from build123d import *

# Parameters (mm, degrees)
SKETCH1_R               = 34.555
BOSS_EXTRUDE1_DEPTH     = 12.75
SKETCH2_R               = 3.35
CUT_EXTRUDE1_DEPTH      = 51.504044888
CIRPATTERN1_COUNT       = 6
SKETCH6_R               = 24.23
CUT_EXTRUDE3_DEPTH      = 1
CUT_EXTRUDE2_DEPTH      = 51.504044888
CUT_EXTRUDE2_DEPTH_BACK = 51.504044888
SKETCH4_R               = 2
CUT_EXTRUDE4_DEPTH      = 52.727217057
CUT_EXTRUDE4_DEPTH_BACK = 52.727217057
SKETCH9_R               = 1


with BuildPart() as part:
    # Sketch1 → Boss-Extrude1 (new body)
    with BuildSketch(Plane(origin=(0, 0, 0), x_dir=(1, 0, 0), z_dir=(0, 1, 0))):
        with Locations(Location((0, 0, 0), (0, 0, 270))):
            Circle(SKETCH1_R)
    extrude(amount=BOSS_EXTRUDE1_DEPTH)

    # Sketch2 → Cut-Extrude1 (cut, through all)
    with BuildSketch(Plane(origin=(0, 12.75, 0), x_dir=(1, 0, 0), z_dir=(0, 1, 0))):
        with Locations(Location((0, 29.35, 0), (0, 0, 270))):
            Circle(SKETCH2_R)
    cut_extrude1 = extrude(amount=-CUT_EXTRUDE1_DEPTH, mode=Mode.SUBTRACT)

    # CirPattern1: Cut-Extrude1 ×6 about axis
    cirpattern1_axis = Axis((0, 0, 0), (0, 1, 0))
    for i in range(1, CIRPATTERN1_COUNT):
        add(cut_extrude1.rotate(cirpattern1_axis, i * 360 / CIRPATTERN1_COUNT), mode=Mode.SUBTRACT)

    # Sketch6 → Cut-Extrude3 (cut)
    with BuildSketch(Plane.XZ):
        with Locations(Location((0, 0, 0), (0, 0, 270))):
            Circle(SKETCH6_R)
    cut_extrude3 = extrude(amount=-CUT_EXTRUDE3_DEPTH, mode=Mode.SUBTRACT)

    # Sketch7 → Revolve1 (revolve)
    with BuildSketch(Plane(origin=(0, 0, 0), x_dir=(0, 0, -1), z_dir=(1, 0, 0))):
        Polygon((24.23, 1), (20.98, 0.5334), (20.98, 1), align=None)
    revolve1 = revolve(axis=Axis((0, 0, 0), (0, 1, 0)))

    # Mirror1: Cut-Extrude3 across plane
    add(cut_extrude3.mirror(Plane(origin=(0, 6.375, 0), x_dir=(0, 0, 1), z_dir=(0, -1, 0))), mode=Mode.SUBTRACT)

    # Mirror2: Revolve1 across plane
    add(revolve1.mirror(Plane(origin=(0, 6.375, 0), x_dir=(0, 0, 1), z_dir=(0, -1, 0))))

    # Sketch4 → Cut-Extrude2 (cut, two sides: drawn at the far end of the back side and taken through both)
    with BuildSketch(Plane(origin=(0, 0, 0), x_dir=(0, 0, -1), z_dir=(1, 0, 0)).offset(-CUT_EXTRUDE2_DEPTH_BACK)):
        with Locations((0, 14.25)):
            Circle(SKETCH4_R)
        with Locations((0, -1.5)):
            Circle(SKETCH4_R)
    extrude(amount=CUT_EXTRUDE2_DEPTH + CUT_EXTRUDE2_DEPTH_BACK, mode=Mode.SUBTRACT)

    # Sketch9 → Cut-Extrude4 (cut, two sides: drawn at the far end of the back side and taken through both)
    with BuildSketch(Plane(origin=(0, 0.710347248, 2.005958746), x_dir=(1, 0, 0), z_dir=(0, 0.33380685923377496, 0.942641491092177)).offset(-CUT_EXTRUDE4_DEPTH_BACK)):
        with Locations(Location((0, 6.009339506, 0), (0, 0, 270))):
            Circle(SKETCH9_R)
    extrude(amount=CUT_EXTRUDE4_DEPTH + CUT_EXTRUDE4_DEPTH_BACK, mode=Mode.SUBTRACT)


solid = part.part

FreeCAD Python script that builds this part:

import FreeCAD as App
import Part
import Sketcher

doc = App.newDocument("Part")
body = doc.addObject("PartDesign::Body", "Body")

# Sketch on XZ plane
sketch1 = body.newObject("Sketcher::SketchObject", "Sketch")
sketch1.AttachmentSupport = (doc.getObject("XZ_Plane"), [""])
sketch1.MapMode = "FlatFace"
sketch1.addGeometry(Part.Circle(App.Vector(0, 0, 0), App.Vector(0, 0, 1), 34.555), False)
sketch1.addConstraint([
    Sketcher.Constraint("Coincident", 0, 3, -1, 1),
    Sketcher.Constraint("Diameter", 0, 69.11),
])
pad1 = body.newObject("PartDesign::Pad", "Pad")
pad1.Profile = sketch1
pad1.Length = 12.75
pad1.Reversed = True

# Sketch on XZ plane
sketch2 = body.newObject("Sketcher::SketchObject", "Sketch001")
sketch2.AttachmentSupport = (doc.getObject("XZ_Plane"), [""])
sketch2.MapMode = "FlatFace"
sketch2.AttachmentOffset = App.Placement(App.Vector(0, 0, -12.75), App.Rotation())
sketch2.addGeometry(Part.Circle(App.Vector(0, -29.35, 0), App.Vector(0, 0, 1), 3.35), False)
sketch2.addConstraint([
    Sketcher.Constraint("PointOnObject", 0, 3, -2),
    Sketcher.Constraint("Diameter", 0, 6.7),
    Sketcher.Constraint("DistanceY", 0, 3, -1, 1, 29.35),
])
pocket1 = body.newObject("PartDesign::Pocket", "Pocket")
pocket1.Profile = sketch2
pocket1.Type = "ThroughAll"
pocket1.Reversed = True
doc.recompute()

polarpattern = body.newObject("PartDesign::PolarPattern", "PolarPattern")
polarpattern.Originals = [pocket1]
polarpattern.Axis = (doc.getObject("Y_Axis"), [""])
polarpattern.Angle = 360
polarpattern.Occurrences = 6
body.Tip = polarpattern

# Sketch on XZ plane
sketch3 = body.newObject("Sketcher::SketchObject", "Sketch002")
sketch3.AttachmentSupport = (doc.getObject("XZ_Plane"), [""])
sketch3.MapMode = "FlatFace"
sketch3.addGeometry(Part.Circle(App.Vector(0, 0, 0), App.Vector(0, 0, 1), 24.23), False)
sketch3.addConstraint([
    Sketcher.Constraint("Coincident", 0, 3, -1, 1),
    Sketcher.Constraint("Diameter", 0, 48.46),
])
pocket2 = body.newObject("PartDesign::Pocket", "Pocket001")
pocket2.Profile = sketch3
pocket2.Length = 1

# Sketch on YZ plane
sketch4 = body.newObject("Sketcher::SketchObject", "Sketch003")
sketch4.AttachmentSupport = (doc.getObject("YZ_Plane"), [""])
sketch4.MapMode = "FlatFace"
sketch4.addGeometry([
    Part.LineSegment(App.Vector(0.5334, -20.98, 0), App.Vector(1, -24.23, 0)),
    Part.LineSegment(App.Vector(1, -24.23, 0), App.Vector(1, -20.98, 0)),
    Part.LineSegment(App.Vector(1, -20.98, 0), App.Vector(0.5334, -20.98, 0)),
], False)
sketch4.addConstraint([
    Sketcher.Constraint("Coincident", 0, 2, 1, 1),
    Sketcher.Constraint("Coincident", 1, 2, 2, 1),
    Sketcher.Constraint("Coincident", 2, 2, 0, 1),
    Sketcher.Constraint("Vertical", 1),
    Sketcher.Constraint("Horizontal", 2),
    Sketcher.Constraint("DistanceX", -1, 1, 0, 2, 1.0),
    Sketcher.Constraint("DistanceY", 1, 1, 1, 2, 3.25),
    Sketcher.Constraint("DistanceY", 0, 2, -1, 1, 24.23),
    Sketcher.Constraint("DistanceX", 2, 2, 2, 1, 0.4666),
])
revolution = body.newObject("PartDesign::Revolution", "Revolution")
revolution.Profile = sketch4
revolution.ReferenceAxis = (sketch4, ["H_Axis"])
revolution.Angle = 360
doc.recompute()

datumplane = body.newObject("PartDesign::Plane", "DatumPlane")
datumplane.AttachmentSupport = (doc.getObject("XZ_Plane"), [""])
datumplane.MapMode = "FlatFace"
datumplane.AttachmentOffset = App.Placement(App.Vector(0, 0, -6.375), App.Rotation())
mirrored = body.newObject("PartDesign::Mirrored", "Mirrored")
mirrored.Originals = [pocket2]
mirrored.MirrorPlane = (datumplane, [""])
body.Tip = mirrored
doc.recompute()

datumplane2 = body.newObject("PartDesign::Plane", "DatumPlane001")
datumplane2.AttachmentSupport = (doc.getObject("XZ_Plane"), [""])
datumplane2.MapMode = "FlatFace"
datumplane2.AttachmentOffset = App.Placement(App.Vector(0, 0, -6.375), App.Rotation())
mirrored2 = body.newObject("PartDesign::Mirrored", "Mirrored001")
mirrored2.Originals = [revolution]
mirrored2.MirrorPlane = (datumplane2, [""])
body.Tip = mirrored2

# Sketch on YZ plane
sketch5 = body.newObject("Sketcher::SketchObject", "Sketch004")
sketch5.AttachmentSupport = (doc.getObject("YZ_Plane"), [""])
sketch5.MapMode = "FlatFace"
sketch5.addGeometry([
    Part.Circle(App.Vector(14.25, 0, 0), App.Vector(0, 0, 1), 2),
    Part.Circle(App.Vector(-1.5, 0, 0), App.Vector(0, 0, 1), 2),
], False)
sketch5.addConstraint([
    Sketcher.Constraint("Equal", 0, 1),
    Sketcher.Constraint("PointOnObject", 0, 3, -1),
    Sketcher.Constraint("PointOnObject", 1, 3, -1),
    Sketcher.Constraint("Diameter", 0, 4.0),
    Sketcher.Constraint("DistanceX", 1, 3, -1, 1, 1.5),
    Sketcher.Constraint("DistanceX", -1, 1, 0, 3, 14.25),
])
pocket3 = body.newObject("PartDesign::Pocket", "Pocket002")
pocket3.Profile = sketch5
pocket3.Type = "ThroughAll"
pocket3.Midplane = True

# Sketch on an angled plane
sketch6 = body.newObject("Sketcher::SketchObject", "Sketch005")
sketch6.Placement = App.Placement(App.Vector(0, 0.710347, 2.005959), App.Rotation(App.Vector(1, 0, 0), App.Vector(0, 0.942641491, -0.333806859), App.Vector(0, 0.333806859, 0.942641491), "ZXY"))
sketch6.addGeometry(Part.Circle(App.Vector(0, 6.00934, 0), App.Vector(0, 0, 1), 1), False)
sketch6.addConstraint([
    Sketcher.Constraint("PointOnObject", 0, 3, -2),
    Sketcher.Constraint("Diameter", 0, 2.0),
    Sketcher.Constraint("DistanceY", -1, 1, 0, 3, 6.00934),
])
pocket4 = body.newObject("PartDesign::Pocket", "Pocket003")
pocket4.Profile = sketch6
pocket4.Type = "ThroughAll"
pocket4.Midplane = True

doc.recompute()
